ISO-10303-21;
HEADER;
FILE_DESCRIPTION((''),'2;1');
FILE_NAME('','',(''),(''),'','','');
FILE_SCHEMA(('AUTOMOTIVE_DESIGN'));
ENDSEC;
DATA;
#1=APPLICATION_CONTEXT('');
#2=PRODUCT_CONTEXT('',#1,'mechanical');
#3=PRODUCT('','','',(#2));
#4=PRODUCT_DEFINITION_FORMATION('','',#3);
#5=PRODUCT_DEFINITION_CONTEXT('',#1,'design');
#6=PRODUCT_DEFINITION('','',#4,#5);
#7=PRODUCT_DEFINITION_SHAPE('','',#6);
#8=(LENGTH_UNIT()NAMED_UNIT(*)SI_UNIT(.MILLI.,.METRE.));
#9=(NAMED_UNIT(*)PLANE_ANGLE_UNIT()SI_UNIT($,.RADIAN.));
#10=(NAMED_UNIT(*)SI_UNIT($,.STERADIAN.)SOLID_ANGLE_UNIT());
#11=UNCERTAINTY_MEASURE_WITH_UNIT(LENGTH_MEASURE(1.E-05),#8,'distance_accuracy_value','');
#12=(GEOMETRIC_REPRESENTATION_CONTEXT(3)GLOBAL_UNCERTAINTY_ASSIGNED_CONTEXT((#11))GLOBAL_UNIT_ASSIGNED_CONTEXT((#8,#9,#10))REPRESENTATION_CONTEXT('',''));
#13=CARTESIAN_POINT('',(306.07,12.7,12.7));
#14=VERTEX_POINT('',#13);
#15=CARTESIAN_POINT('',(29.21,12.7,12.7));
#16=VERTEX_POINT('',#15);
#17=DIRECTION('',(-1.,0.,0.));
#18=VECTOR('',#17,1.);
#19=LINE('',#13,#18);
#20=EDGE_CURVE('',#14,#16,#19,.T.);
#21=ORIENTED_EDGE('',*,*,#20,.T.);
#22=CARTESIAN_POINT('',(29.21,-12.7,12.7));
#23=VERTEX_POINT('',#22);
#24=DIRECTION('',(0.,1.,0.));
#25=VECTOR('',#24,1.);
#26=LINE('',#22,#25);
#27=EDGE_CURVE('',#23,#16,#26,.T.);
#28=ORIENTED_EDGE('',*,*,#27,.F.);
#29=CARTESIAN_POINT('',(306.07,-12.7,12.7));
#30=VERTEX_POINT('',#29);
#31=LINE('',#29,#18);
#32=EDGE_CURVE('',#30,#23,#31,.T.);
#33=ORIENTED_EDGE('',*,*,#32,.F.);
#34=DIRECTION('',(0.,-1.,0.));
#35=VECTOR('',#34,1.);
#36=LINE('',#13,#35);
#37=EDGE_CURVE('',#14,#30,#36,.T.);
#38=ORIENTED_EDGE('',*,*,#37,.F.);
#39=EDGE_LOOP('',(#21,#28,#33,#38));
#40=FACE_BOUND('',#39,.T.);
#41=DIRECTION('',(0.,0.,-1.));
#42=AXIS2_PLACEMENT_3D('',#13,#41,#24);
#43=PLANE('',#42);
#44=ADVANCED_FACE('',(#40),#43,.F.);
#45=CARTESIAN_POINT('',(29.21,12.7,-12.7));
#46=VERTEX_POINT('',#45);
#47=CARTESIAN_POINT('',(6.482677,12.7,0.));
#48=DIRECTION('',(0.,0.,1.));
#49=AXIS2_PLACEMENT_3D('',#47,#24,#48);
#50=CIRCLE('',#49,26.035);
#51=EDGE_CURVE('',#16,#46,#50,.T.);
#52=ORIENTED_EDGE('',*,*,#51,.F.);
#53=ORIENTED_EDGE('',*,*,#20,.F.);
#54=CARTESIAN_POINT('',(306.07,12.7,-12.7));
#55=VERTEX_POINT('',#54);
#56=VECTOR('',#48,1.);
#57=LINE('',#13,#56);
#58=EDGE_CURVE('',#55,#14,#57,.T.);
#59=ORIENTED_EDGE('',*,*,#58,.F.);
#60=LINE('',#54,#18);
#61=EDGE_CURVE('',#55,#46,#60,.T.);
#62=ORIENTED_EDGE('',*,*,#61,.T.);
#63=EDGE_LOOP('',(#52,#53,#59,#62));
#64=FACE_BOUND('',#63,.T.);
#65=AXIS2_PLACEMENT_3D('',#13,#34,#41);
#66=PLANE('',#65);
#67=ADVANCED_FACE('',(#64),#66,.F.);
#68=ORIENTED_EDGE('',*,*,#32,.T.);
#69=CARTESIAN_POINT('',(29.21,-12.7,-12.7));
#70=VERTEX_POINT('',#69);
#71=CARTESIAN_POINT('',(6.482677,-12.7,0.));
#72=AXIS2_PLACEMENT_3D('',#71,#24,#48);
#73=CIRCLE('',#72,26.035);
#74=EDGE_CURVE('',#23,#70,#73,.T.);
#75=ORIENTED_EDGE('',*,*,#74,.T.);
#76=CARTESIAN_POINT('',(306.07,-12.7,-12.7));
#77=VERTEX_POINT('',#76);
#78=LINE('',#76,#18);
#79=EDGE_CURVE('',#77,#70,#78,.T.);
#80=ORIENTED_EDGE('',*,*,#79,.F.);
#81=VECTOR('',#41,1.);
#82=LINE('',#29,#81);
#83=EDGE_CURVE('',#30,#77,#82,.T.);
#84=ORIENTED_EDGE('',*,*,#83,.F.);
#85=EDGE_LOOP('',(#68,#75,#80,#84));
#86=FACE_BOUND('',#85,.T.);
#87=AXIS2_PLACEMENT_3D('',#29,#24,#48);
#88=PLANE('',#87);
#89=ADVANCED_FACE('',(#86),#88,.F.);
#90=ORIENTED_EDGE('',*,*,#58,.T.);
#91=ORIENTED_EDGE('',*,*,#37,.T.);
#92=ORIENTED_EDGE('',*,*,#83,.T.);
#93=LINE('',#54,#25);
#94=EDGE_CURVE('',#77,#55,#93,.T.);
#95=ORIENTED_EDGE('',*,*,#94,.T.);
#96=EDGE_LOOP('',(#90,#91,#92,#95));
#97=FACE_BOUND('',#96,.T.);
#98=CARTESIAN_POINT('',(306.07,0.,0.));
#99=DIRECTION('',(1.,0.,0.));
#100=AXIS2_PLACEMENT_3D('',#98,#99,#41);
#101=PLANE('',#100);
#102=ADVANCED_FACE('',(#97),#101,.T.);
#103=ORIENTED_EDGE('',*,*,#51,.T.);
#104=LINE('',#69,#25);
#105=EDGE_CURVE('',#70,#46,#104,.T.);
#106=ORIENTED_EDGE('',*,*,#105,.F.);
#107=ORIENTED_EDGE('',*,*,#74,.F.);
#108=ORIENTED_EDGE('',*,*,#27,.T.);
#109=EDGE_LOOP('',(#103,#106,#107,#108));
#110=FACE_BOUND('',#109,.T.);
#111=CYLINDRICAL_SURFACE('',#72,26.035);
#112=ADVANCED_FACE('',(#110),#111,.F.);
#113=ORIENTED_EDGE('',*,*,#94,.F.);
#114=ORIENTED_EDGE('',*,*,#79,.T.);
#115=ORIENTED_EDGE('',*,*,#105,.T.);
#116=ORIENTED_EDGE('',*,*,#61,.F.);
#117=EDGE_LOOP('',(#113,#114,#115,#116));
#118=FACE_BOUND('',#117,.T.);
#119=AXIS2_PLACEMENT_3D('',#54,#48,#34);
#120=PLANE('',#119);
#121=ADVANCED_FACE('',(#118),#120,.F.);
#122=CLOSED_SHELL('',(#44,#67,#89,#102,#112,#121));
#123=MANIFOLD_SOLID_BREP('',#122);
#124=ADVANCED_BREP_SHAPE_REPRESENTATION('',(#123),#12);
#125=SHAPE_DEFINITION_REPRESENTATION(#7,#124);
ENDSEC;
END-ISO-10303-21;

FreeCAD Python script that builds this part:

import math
import FreeCAD as App
import Part
import Sketcher
from FreeCAD import Vector
Q = App.Units.Quantity

doc = App.newDocument("Part")
body = doc.addObject("PartDesign::Body", "Body")

sketch1 = body.newObject("Sketcher::SketchObject", "Sketch")
sketch1.AttachmentSupport = (doc.getObject("YZ_Plane"), [""])
sketch1.MapMode = "FlatFace"
sketch1.addGeometry([
    Part.LineSegment(Vector(13, 13, 0), Vector(-13, 13, 0)),
    Part.LineSegment(Vector(-13, 13, 0), Vector(-13, -13, 0)),
    Part.LineSegment(Vector(-13, -13, 0), Vector(13, -13, 0)),
    Part.LineSegment(Vector(13, -13, 0), Vector(13, 13, 0)),
], False)
sketch1.addConstraint([
    Sketcher.Constraint("Coincident", 0, 2, 1, 1),
    Sketcher.Constraint("Coincident", 1, 2, 2, 1),
    Sketcher.Constraint("Coincident", 2, 2, 3, 1),
    Sketcher.Constraint("Coincident", 3, 2, 0, 1),
    Sketcher.Constraint("Horizontal", 0),
    Sketcher.Constraint("Vertical", 1),
    Sketcher.Constraint("Horizontal", 2),
    Sketcher.Constraint("Vertical", 3),
    Sketcher.Constraint("Symmetric", 0, 2, 2, 2, -1, 1),
    Sketcher.Constraint("Equal", 2, 1),
    Sketcher.Constraint("DistanceX", 0, 2, 0, 1, Q("1 in")),
])
pad1 = body.newObject("PartDesign::Pad", "Pad")
pad1.Profile = sketch1
pad1.Length = Q("12.05 in")

sketch2 = body.newObject("Sketcher::SketchObject", "Sketch001")
sketch2.AttachmentSupport = (doc.getObject("XZ_Plane"), [""])
sketch2.MapMode = "FlatFace"
sketch2.AttachmentOffset = App.Placement(Vector(0, 0, -0.5 * 25.4), App.Rotation())
sketch2.addGeometry([
    Part.LineSegment(Vector(0, 13, 0), Vector(29, 13, 0)),
    Part.ArcOfCircle(Part.Circle(Vector(6, 0, 0), Vector(0, 0, 1), 26), math.radians(-29), math.radians(29)),
    Part.LineSegment(Vector(29, -13, 0), Vector(0, -13, 0)),
    Part.LineSegment(Vector(0, -13, 0), Vector(0, 13, 0)),
], False)
sketch2.addConstraint([
    Sketcher.Constraint("Coincident", 0, 2, 1, 2),
    Sketcher.Constraint("Coincident", 1, 1, 2, 1),
    Sketcher.Constraint("Coincident", 2, 2, 3, 1),
    Sketcher.Constraint("Coincident", 3, 2, 0, 1),
    Sketcher.Constraint("Horizontal", 0),
    Sketcher.Constraint("Horizontal", 2),
    Sketcher.Constraint("Vertical", 3),
    Sketcher.Constraint("Symmetric", 2, 2, 3, 2, -1, 1),
    Sketcher.Constraint("PointOnObject", 1, 3, -1),
    Sketcher.Constraint("DistanceY", 3, 1, 3, 2, Q("1 in")),
    Sketcher.Constraint("Radius", 1, Q("1.025 in")),
    Sketcher.Constraint("DistanceX", 0, 1, 0, 2, Q("1.15 in")),
])
pocket1 = body.newObject("PartDesign::Pocket", "Pocket")
pocket1.Profile = sketch2
pocket1.Type = "ThroughAll"
pocket1.Midplane = True

doc.recompute()
